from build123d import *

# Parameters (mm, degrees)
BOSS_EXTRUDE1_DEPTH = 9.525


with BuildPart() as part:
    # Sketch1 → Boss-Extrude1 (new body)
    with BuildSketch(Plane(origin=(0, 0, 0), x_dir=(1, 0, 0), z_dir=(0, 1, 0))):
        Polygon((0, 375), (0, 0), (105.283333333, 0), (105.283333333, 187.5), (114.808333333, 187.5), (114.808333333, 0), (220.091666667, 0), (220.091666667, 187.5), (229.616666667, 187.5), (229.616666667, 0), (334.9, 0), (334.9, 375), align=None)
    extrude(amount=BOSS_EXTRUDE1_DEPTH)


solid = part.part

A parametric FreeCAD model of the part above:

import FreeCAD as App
import Part
import Sketcher

V = App.Vector

doc = App.newDocument("Part")
body = doc.addObject("PartDesign::Body", "Body")

# Sketch on XZ plane
sketch1 = doc.addObject("Sketcher::SketchObject", "Sketch")
body.addObject(sketch1)
sketch1.AttachmentSupport = (doc.XZ_Plane, [""])
sketch1.MapMode = "FlatFace"
sketch1.addGeometry([
    Part.LineSegment(V(0, -375, 0), V(0, 0, 0)),  # 0
    Part.LineSegment(V(0, 0, 0), V(105, 0, 0)),  # 1
    Part.LineSegment(V(105, 0, 0), V(105, -188, 0)),  # 2
    Part.LineSegment(V(105, -188, 0), V(115, -188, 0)),  # 3
    Part.LineSegment(V(115, -188, 0), V(115, 0, 0)),  # 4
    Part.LineSegment(V(115, 0, 0), V(220, 0, 0)),  # 5
    Part.LineSegment(V(220, 0, 0), V(220, -188, 0)),  # 6
    Part.LineSegment(V(220, -188, 0), V(230, -188, 0)),  # 7
    Part.LineSegment(V(230, -188, 0), V(230, 0, 0)),  # 8
    Part.LineSegment(V(230, 0, 0), V(335, 0, 0)),  # 9
    Part.LineSegment(V(335, 0, 0), V(335, -375, 0)),  # 10
    Part.LineSegment(V(335, -375, 0), V(0, -375, 0)),  # 11
], False)
sketch1.addConstraint([
    Sketcher.Constraint("Coincident", 0, 2, 1, 1),
    Sketcher.Constraint("Coincident", 1, 2, 2, 1),
    Sketcher.Constraint("Coincident", 2, 2, 3, 1),
    Sketcher.Constraint("Coincident", 3, 2, 4, 1),
    Sketcher.Constraint("Coincident", 4, 2, 5, 1),
    Sketcher.Constraint("Coincident", 5, 2, 6, 1),
    Sketcher.Constraint("Coincident", 6, 2, 7, 1),
    Sketcher.Constraint("Coincident", 7, 2, 8, 1),
    Sketcher.Constraint("Coincident", 8, 2, 9, 1),
    Sketcher.Constraint("Coincident", 9, 2, 10, 1),
    Sketcher.Constraint("Coincident", 10, 2, 11, 1),
    Sketcher.Constraint("Coincident", 11, 2, 0, 1),
    Sketcher.Constraint("Vertical", 0),
    Sketcher.Constraint("Horizontal", 1),
    Sketcher.Constraint("Vertical", 2),
    Sketcher.Constraint("Horizontal", 3),
    Sketcher.Constraint("Vertical", 4),
    Sketcher.Constraint("Horizontal", 5),
    Sketcher.Constraint("Vertical", 6),
    Sketcher.Constraint("Horizontal", 7),
    Sketcher.Constraint("Vertical", 8),
    Sketcher.Constraint("Horizontal", 9),
    Sketcher.Constraint("Vertical", 10),
    Sketcher.Constraint("Horizontal", 11),
    Sketcher.Constraint("Coincident", 0, 2, -1, 1),
    Sketcher.Constraint("PointOnObject", 4, 2, -1),
    Sketcher.Constraint("PointOnObject", 8, 2, -1),
    Sketcher.Constraint("Horizontal", 3, 2, 6, 2),
    Sketcher.Constraint("Equal", 1, 5),
    Sketcher.Constraint("Equal", 3, 7),
    Sketcher.Constraint("Equal", 5, 9),
    Sketcher.Constraint("DistanceY", 0, 1, 0, 2, 375.0),
    Sketcher.Constraint("DistanceX", 11, 2, 11, 1, 334.9),
    Sketcher.Constraint("DistanceY", 2, 2, 2, 1, 187.5),
    Sketcher.Constraint("DistanceX", 3, 1, 3, 2, 9.525),
])
pad1 = doc.addObject("PartDesign::Pad", "Pad")
body.addObject(pad1)
pad1.Profile = sketch1
pad1.Length = 9.525
pad1.Reversed = True

doc.recompute()
